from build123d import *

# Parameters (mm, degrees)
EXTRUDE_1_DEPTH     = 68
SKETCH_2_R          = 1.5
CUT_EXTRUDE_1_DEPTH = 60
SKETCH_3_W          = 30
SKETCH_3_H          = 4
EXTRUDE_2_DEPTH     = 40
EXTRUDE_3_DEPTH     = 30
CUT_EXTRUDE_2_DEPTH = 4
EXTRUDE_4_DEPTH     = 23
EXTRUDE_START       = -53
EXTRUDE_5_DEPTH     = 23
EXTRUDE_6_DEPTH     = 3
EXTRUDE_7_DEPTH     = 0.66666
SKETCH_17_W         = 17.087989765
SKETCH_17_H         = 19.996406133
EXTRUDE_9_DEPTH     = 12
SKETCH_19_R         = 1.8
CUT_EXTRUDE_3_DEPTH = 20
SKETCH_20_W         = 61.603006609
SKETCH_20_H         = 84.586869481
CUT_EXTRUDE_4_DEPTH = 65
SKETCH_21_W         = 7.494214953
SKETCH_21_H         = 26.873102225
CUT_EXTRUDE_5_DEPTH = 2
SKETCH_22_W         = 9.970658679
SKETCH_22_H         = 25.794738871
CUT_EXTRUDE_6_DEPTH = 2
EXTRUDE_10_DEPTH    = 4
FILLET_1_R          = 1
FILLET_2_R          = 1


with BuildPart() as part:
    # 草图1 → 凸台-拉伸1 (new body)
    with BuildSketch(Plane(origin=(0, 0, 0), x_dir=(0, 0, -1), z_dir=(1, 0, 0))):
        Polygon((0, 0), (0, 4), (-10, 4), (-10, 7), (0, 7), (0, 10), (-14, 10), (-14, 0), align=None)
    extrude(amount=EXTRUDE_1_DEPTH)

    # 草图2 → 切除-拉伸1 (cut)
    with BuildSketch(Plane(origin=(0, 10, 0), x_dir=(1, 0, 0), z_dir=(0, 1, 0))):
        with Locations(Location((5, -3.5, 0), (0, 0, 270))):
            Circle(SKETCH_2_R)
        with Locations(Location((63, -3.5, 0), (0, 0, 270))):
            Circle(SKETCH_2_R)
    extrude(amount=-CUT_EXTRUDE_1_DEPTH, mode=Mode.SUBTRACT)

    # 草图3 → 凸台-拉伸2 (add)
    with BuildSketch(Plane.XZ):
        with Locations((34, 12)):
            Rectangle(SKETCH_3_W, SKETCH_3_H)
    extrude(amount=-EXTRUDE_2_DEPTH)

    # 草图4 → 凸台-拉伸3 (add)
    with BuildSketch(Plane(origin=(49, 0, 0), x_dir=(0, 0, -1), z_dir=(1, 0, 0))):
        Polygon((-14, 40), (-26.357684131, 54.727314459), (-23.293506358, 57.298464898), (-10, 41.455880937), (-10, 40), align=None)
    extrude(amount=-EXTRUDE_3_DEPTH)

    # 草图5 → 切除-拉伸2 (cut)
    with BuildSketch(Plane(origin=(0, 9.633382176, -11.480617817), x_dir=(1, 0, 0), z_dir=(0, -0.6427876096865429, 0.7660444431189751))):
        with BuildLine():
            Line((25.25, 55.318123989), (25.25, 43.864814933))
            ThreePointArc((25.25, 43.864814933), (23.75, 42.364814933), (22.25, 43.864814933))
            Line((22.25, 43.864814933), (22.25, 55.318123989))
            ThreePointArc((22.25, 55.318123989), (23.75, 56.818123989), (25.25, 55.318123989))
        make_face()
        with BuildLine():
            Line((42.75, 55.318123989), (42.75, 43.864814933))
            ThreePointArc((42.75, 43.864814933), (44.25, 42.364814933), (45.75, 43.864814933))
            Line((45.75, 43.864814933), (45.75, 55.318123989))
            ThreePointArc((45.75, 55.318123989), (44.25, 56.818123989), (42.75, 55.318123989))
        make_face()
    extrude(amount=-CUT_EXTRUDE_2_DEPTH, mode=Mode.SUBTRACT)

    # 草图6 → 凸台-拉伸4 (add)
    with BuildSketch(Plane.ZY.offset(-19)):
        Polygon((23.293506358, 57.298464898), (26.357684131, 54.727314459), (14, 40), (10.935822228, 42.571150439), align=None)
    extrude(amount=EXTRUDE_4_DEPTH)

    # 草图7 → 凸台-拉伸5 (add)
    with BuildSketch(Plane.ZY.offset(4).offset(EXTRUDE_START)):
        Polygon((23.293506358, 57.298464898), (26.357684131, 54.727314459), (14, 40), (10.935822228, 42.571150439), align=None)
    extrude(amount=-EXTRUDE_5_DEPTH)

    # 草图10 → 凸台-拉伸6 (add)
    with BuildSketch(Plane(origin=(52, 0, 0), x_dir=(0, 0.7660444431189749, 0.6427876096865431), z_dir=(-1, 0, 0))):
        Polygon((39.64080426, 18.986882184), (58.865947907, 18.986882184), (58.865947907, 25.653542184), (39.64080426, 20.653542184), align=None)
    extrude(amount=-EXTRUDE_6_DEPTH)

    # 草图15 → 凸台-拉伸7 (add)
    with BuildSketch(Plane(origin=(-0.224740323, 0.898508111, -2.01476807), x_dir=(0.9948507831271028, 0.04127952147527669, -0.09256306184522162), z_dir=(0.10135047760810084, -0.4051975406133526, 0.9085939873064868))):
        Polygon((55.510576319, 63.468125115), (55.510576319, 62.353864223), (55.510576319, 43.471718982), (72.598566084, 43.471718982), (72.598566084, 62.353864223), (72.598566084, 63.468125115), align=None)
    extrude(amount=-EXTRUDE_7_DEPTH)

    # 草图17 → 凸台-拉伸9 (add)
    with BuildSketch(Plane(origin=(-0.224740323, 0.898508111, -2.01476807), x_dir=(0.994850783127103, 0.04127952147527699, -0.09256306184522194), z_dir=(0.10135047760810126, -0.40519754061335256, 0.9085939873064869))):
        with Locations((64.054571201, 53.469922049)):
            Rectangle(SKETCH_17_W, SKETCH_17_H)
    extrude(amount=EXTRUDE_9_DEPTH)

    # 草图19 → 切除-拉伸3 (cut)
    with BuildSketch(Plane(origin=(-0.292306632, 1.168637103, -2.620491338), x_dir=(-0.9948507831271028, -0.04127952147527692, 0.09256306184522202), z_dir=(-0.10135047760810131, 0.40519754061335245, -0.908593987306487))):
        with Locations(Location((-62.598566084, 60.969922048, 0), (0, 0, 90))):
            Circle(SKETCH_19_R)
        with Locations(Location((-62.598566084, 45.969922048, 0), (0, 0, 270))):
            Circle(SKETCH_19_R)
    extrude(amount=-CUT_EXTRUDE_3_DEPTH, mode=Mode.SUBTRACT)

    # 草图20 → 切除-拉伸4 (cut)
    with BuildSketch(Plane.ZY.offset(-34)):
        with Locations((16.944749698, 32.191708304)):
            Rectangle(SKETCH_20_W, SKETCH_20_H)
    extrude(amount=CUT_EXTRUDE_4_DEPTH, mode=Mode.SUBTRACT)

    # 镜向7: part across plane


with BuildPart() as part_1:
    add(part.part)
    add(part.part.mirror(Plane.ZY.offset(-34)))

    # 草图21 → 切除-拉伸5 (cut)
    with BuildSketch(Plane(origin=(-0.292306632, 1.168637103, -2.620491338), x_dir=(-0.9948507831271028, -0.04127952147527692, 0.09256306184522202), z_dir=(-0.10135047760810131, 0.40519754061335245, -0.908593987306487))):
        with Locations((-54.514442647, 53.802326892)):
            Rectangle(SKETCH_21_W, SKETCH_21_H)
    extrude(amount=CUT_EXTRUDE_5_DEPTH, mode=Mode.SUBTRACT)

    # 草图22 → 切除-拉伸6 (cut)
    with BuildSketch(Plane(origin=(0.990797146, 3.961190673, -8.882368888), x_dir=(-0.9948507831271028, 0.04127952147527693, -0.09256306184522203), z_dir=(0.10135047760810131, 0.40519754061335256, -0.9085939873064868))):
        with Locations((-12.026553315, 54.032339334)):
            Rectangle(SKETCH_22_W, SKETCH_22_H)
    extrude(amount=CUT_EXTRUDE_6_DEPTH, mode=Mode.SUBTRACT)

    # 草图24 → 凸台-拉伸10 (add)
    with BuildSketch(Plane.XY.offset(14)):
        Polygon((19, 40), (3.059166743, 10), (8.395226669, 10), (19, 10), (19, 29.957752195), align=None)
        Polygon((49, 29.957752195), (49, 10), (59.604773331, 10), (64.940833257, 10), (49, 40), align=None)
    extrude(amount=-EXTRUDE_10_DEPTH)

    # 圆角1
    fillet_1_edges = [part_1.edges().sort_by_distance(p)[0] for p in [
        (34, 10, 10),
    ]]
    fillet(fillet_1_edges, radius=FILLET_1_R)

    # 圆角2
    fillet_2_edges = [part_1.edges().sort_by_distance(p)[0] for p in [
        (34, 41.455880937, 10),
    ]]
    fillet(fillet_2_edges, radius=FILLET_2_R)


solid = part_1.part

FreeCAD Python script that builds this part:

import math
import FreeCAD as App
import Part
import Sketcher

V = App.Vector
Q = App.Units.Quantity


def edges_at(feature, points):
    """Names of the edges that pass closest to the given points."""
    edges = feature.Shape.Edges
    near = lambda p: min(range(len(edges)), key=lambda i: edges[i].distToShape(Part.Vertex(*p))[0])
    return sorted({f"Edge{near(p) + 1}" for p in points})


def add_polygon(sketch, points):
    """Adds a closed chain of lines whose ends are joined by coincident constraints."""
    first, n = sketch.GeometryCount, len(points)
    for a, b in zip(points, points[1:] + points[:1]):
        sketch.addGeometry(Part.LineSegment(App.Vector(*a, 0), App.Vector(*b, 0)), False)
    for i in range(n):
        sketch.addConstraint(Sketcher.Constraint("Coincident", first + i, 2, first + (i + 1) % n, 1))

doc = App.newDocument("Part")
params = doc.addObject("Spreadsheet::Sheet", "Params")
for row, (alias, value) in enumerate([
    ("sketch1_width", "4 mm"),
    ("sketch1_width2", "3 mm"),
    ("sketch1_height", "14 mm"),
    ("pad1_length", "68 mm"),
    ("sketch2_diameter", "3 mm"),
    ("pocket1_length", "60 mm"),
    ("sketch3_width", "30 mm"),
    ("sketch3_height", "4 mm"),
    ("pad2_length", "40 mm"),
    ("sketch4_height", "4 mm"),
    ("sketch4_length", "4 mm"),
    ("pad3_length", "30 mm"),
    ("sketch5_radius", "1.5 mm"),
    ("pocket2_length", "4 mm"),
    ("sketch6_length", "4 mm"),
    ("pad4_length", "23 mm"),
    ("sketch7_length", "4 mm"),
    ("pad5_length", "23 mm"),
    ("pad6_length", "3 mm"),
    ("pad7_length", "0.66666 mm"),
    ("pad8_length", "12 mm"),
    ("sketch11_diameter", "3.6 mm"),
    ("pocket3_length", "20 mm"),
    ("pocket4_length", "65 mm"),
    ("pocket5_length", "2 mm"),
    ("pocket6_length", "2 mm"),
    ("sketch15_height", "30 mm"),
    ("pad9_length", "4 mm"),
    ("fillet_radius", "1 mm"),
    ("fillet2_radius", "1 mm"),
], start=1):
    params.set(f"A{row}", alias)
    params.set(f"B{row}", "=" + value)
    params.setAlias(f"B{row}", alias)

body = doc.addObject("PartDesign::Body", "Body")

sketch1 = body.newObject("Sketcher::SketchObject", "Sketch")
sketch1.AttachmentSupport = (doc.getObject("YZ_Plane"), [""])
sketch1.MapMode = "FlatFace"
add_polygon(sketch1, [(0, 0), (4, 0), (4, 10), (7, 10), (7, 0), (10, 0), (10, 14), (0, 14)])
sketch1.addConstraint([
    Sketcher.Constraint("Horizontal", 0),
    Sketcher.Constraint("Vertical", 1),
    Sketcher.Constraint("Horizontal", 2),
    Sketcher.Constraint("Vertical", 3),
    Sketcher.Constraint("Horizontal", 4),
    Sketcher.Constraint("Vertical", 5),
    Sketcher.Constraint("Horizontal", 6),
    Sketcher.Constraint("Vertical", 7),
    Sketcher.Constraint("Coincident", 7, 2, -1, 1),
    Sketcher.Constraint("PointOnObject", 3, 2, -1),
    Sketcher.Constraint("Equal", 2, 4),
    Sketcher.Constraint("Equal", 6, 1),
    Sketcher.Constraint("DistanceX", 0, 1, 0, 2, 4.0),
    Sketcher.Constraint("DistanceX", 2, 1, 2, 2, 3.0),
    Sketcher.Constraint("DistanceY", 5, 1, 5, 2, 14.0),
])
sketch1.setExpression("Constraints[20]", "Params.sketch1_width")
sketch1.setExpression("Constraints[21]", "Params.sketch1_width2")
sketch1.setExpression("Constraints[22]", "Params.sketch1_height")
pad1 = body.newObject("PartDesign::Pad", "Pad")
pad1.Profile = sketch1
pad1.setExpression("Length", "Params.pad1_length")

sketch2 = body.newObject("Sketcher::SketchObject", "Sketch001")
sketch2.AttachmentSupport = (doc.getObject("XZ_Plane"), [""])
sketch2.MapMode = "FlatFace"
sketch2.AttachmentOffset = App.Placement(V(0, 0, -10), App.Rotation())
sketch2.addGeometry([
    Part.Circle(V(5, 3.5, 0), V(0, 0, 1), 1.5),
    Part.Circle(V(63, 3.5, 0), V(0, 0, 1), 1.5),
], False)
sketch2.addConstraint([
    Sketcher.Constraint("Equal", 0, 1),
    Sketcher.Constraint("Horizontal", 0, 3, 1, 3),
    Sketcher.Constraint("Diameter", 0, 3.0),
    Sketcher.Constraint("DistanceX", -1, 1, 0, 3, 5.0),
    Sketcher.Constraint("DistanceX", -1, 1, 1, 3, 63.0),
    Sketcher.Constraint("DistanceY", -1, 1, 0, 3, 3.5),
])
sketch2.setExpression("Constraints[2]", "Params.sketch2_diameter")
pocket1 = body.newObject("PartDesign::Pocket", "Pocket")
pocket1.Profile = sketch2
pocket1.setExpression("Length", "Params.pocket1_length")
pocket1.Reversed = True

sketch3 = body.newObject("Sketcher::SketchObject", "Sketch002")
sketch3.AttachmentSupport = (doc.getObject("XZ_Plane"), [""])
sketch3.MapMode = "FlatFace"
add_polygon(sketch3, [(19, 14), (19, 10), (49, 10), (49, 14)])
sketch3.addConstraint([
    Sketcher.Constraint("Vertical", 0),
    Sketcher.Constraint("Horizontal", 1),
    Sketcher.Constraint("Vertical", 2),
    Sketcher.Constraint("Horizontal", 3),
    Sketcher.Constraint("DistanceX", 1, 1, 1, 2, 30.0),
    Sketcher.Constraint("DistanceY", 0, 2, 0, 1, 4.0),
    Sketcher.Constraint("DistanceX", -1, 1, 0, 2, 19.0),
    Sketcher.Constraint("DistanceY", -1, 1, 0, 2, 10.0),
])
sketch3.setExpression("Constraints[8]", "Params.sketch3_width")
sketch3.setExpression("Constraints[9]", "Params.sketch3_height")
pad2 = body.newObject("PartDesign::Pad", "Pad001")
pad2.Profile = sketch3
pad2.setExpression("Length", "Params.pad2_length")
pad2.Reversed = True

sketch4 = body.newObject("Sketcher::SketchObject", "Sketch003")
sketch4.AttachmentSupport = (doc.getObject("YZ_Plane"), [""])
sketch4.MapMode = "FlatFace"
sketch4.AttachmentOffset = App.Placement(V(0, 0, 49), App.Rotation())
add_polygon(sketch4, [(54.7, 26.4), (40, 14), (40, 10), (41.5, 10), (57.3, 23.3)])
sketch4.addConstraint([
    Sketcher.Constraint("Vertical", 1),
    Sketcher.Constraint("Horizontal", 2),
    Sketcher.Constraint("Parallel", 0, 3),
    Sketcher.Constraint("Perpendicular", 3, 4),
    Sketcher.Constraint("DistanceY", 1, 2, 1, 1, 4.0),
    Sketcher.Constraint("Angle", 0, Q("-140 deg")),
    Sketcher.Constraint("Distance", 4, 4.0),
    Sketcher.Constraint("DistanceX", -1, 1, 0, 2, 40.0),
    Sketcher.Constraint("DistanceY", -1, 1, 0, 2, 14.0),
    Sketcher.Constraint("Distance", 0, 19.225144),
])
sketch4.setExpression("Constraints[9]", "Params.sketch4_height")
sketch4.setExpression("Constraints[11]", "Params.sketch4_length")
pad3 = body.newObject("PartDesign::Pad", "Pad002")
pad3.Profile = sketch4
pad3.setExpression("Length", "Params.pad3_length")
pad3.Reversed = True

sketch5 = body.newObject("Sketcher::SketchObject", "Sketch004")
sketch5.Placement = App.Placement(V(0, 9.633382, -11.480618), App.Rotation(V(1, 0, 0), V(0, 0.766044443, 0.64278761), V(0, -0.64278761, 0.766044443), "ZXY"))
sketch5.addGeometry([
    Part.LineSegment(V(25.2, 43.9, 0), V(25.2, 55.3, 0)),
    Part.ArcOfCircle(Part.Circle(V(23.8, 55.3, 0), V(0, 0, 1), 1.5), math.radians(0), math.radians(180)),
    Part.LineSegment(V(22.2, 55.3, 0), V(22.2, 43.9, 0)),
    Part.ArcOfCircle(Part.Circle(V(23.8, 43.9, 0), V(0, 0, 1), 1.5), math.radians(180), math.radians(360)),
    Part.LineSegment(V(42.8, 55.3, 0), V(42.8, 43.9, 0)),
    Part.ArcOfCircle(Part.Circle(V(44.2, 43.9, 0), V(0, 0, 1), 1.5), math.radians(180), math.radians(360)),
    Part.LineSegment(V(45.8, 43.9, 0), V(45.8, 55.3, 0)),
    Part.ArcOfCircle(Part.Circle(V(44.2, 55.3, 0), V(0, 0, 1), 1.5), math.radians(0), math.radians(180)),
], False)
sketch5.addConstraint([
    Sketcher.Constraint("Tangent", 0, 2, 1, 1),
    Sketcher.Constraint("Tangent", 1, 2, 2, 1),
    Sketcher.Constraint("Tangent", 2, 2, 3, 1),
    Sketcher.Constraint("Tangent", 3, 2, 0, 1),
    Sketcher.Constraint("Tangent", 4, 2, 5, 1),
    Sketcher.Constraint("Tangent", 5, 2, 6, 1),
    Sketcher.Constraint("Tangent", 6, 2, 7, 1),
    Sketcher.Constraint("Tangent", 7, 2, 4, 1),
    Sketcher.Constraint("Vertical", 0),
    Sketcher.Constraint("Vertical", 2),
    Sketcher.Constraint("Vertical", 4),
    Sketcher.Constraint("Vertical", 6),
    Sketcher.Constraint("Equal", 3, 5),
    Sketcher.Constraint("Horizontal", 3, 3, 5, 3),
    Sketcher.Constraint("Horizontal", 1, 3, 7, 3),
    Sketcher.Constraint("Radius", 1, 1.5),
    Sketcher.Constraint("DistanceX", 0, 2, 7, 3, 19.0),
    Sketcher.Constraint("DistanceX", -1, 1, 1, 3, 23.75),
    Sketcher.Constraint("DistanceY", 0, 1, 0, 2, 11.453309),
    Sketcher.Constraint("DistanceY", -1, 1, 1, 3, 55.318124),
])
sketch5.setExpression("Constraints[15]", "Params.sketch5_radius")
pocket2 = body.newObject("PartDesign::Pocket", "Pocket001")
pocket2.Profile = sketch5
pocket2.setExpression("Length", "Params.pocket2_length")

sketch6 = body.newObject("Sketcher::SketchObject", "Sketch005")
sketch6.AttachmentSupport = (doc.getObject("YZ_Plane"), [""])
sketch6.MapMode = "FlatFace"
sketch6.AttachmentOffset = App.Placement(V(0, 0, 19), App.Rotation())
add_polygon(sketch6, [(54.7, 26.4), (57.3, 23.3), (42.6, 10.9), (40, 14)])
sketch6.addConstraint([
    Sketcher.Constraint("Perpendicular", 0, 1),
    Sketcher.Constraint("Perpendicular", 1, 2),
    Sketcher.Constraint("Perpendicular", 2, 3),
    Sketcher.Constraint("Angle", 0, Q("-50 deg")),
    Sketcher.Constraint("Distance", 0, 4.0),
    Sketcher.Constraint("DistanceX", -1, 1, 2, 2, 40.0),
    Sketcher.Constraint("DistanceY", -1, 1, 2, 2, 14.0),
    Sketcher.Constraint("DistanceY", 1, 2, 3, 2, 15.421862),
])
sketch6.setExpression("Constraints[8]", "Params.sketch6_length")
pad4 = body.newObject("PartDesign::Pad", "Pad003")
pad4.Profile = sketch6
pad4.setExpression("Length", "Params.pad4_length")
pad4.Reversed = True

sketch7 = body.newObject("Sketcher::SketchObject", "Sketch006")
sketch7.AttachmentSupport = (doc.getObject("YZ_Plane"), [""])
sketch7.MapMode = "FlatFace"
sketch7.AttachmentOffset = App.Placement(V(0, 0, 49), App.Rotation())
add_polygon(sketch7, [(54.7, 26.4), (57.3, 23.3), (42.6, 10.9), (40, 14)])
sketch7.addConstraint([
    Sketcher.Constraint("Perpendicular", 0, 1),
    Sketcher.Constraint("Perpendicular", 1, 2),
    Sketcher.Constraint("Perpendicular", 2, 3),
    Sketcher.Constraint("Angle", 0, Q("-50 deg")),
    Sketcher.Constraint("Distance", 0, 4.0),
    Sketcher.Constraint("DistanceX", -1, 1, 2, 2, 40.0),
    Sketcher.Constraint("DistanceY", -1, 1, 2, 2, 14.0),
    Sketcher.Constraint("DistanceY", 1, 2, 3, 2, 15.421862),
])
sketch7.setExpression("Constraints[8]", "Params.sketch7_length")
pad5 = body.newObject("PartDesign::Pad", "Pad004")
pad5.Profile = sketch7
pad5.setExpression("Length", "Params.pad5_length")

sketch8 = body.newObject("Sketcher::SketchObject", "Sketch007")
sketch8.AttachmentSupport = (doc.getObject("YZ_Plane"), [""])
sketch8.MapMode = "FlatFace"
sketch8.AttachmentOffset = App.Placement(V(0, 0, 52), App.Rotation())
add_polygon(sketch8, [(42.6, 10.9), (57.3, 23.3), (61.6, 18.2), (43.6, 9.7)])
sketch8.addConstraint([
    Sketcher.Constraint("Perpendicular", 0, 1),
    Sketcher.Constraint("Parallel", 1, 3),
    Sketcher.Constraint("Angle", 0, Q("40 deg")),
    Sketcher.Constraint("Distance", 1, 6.66666),
    Sketcher.Constraint("Distance", 3, 1.66666),
    Sketcher.Constraint("DistanceX", -1, 1, 1, 2, 61.583711),
    Sketcher.Constraint("DistanceY", -1, 1, 1, 2, 18.186549),
    Sketcher.Constraint("DistanceX", -1, 1, 2, 2, 43.642459),
])
pad6 = body.newObject("PartDesign::Pad", "Pad005")
pad6.Profile = sketch8
pad6.setExpression("Length", "Params.pad6_length")

sketch9 = body.newObject("Sketcher::SketchObject", "Sketch008")
sketch9.Placement = App.Placement(V(-0.22474, 0.898508, -2.014768), App.Rotation(V(0.994850783, 0.041279521, -0.092563062), V(0.000000001, 0.91329675, 0.40729479), V(0.101350478, -0.405197541, 0.908593987), "ZXY"))
add_polygon(sketch9, [(56, 63), (56, 43), (73, 43), (73, 63)])
sketch9.addConstraint([
    Sketcher.Constraint("Vertical", 0),
    Sketcher.Constraint("Horizontal", 1),
    Sketcher.Constraint("Vertical", 2),
    Sketcher.Constraint("Horizontal", 3),
    Sketcher.Constraint("DistanceX", 1, 1, 1, 2, 17.08799),
    Sketcher.Constraint("DistanceY", 0, 2, 0, 1, 19.996406),
    Sketcher.Constraint("DistanceY", -1, 1, 0, 2, 43.471719),
    Sketcher.Constraint("DistanceX", -1, 1, 0, 2, 55.510576),
])
pad7 = body.newObject("PartDesign::Pad", "Pad006")
pad7.Profile = sketch9
pad7.setExpression("Length", "Params.pad7_length")
pad7.Reversed = True

sketch10 = body.newObject("Sketcher::SketchObject", "Sketch009")
sketch10.Placement = App.Placement(V(-0.22474, 0.898508, -2.014768), App.Rotation(V(0.994850783, 0.041279521, -0.092563062), V(0.000000001, 0.91329675, 0.40729479), V(0.101350478, -0.405197541, 0.908593987), "ZXY"))
add_polygon(sketch10, [(56, 63), (56, 43), (73, 43), (73, 63)])
sketch10.addConstraint([
    Sketcher.Constraint("Vertical", 0),
    Sketcher.Constraint("Horizontal", 1),
    Sketcher.Constraint("Vertical", 2),
    Sketcher.Constraint("Horizontal", 3),
    Sketcher.Constraint("DistanceX", 1, 1, 1, 2, 17.08799),
    Sketcher.Constraint("DistanceY", 0, 2, 0, 1, 19.996406),
    Sketcher.Constraint("DistanceY", -1, 1, 0, 2, 43.471719),
    Sketcher.Constraint("DistanceX", -1, 1, 0, 2, 55.510576),
])
pad8 = body.newObject("PartDesign::Pad", "Pad007")
pad8.Profile = sketch10
pad8.setExpression("Length", "Params.pad8_length")

sketch11 = body.newObject("Sketcher::SketchObject", "Sketch010")
sketch11.Placement = App.Placement(V(-0.292307, 1.168637, -2.620491), App.Rotation(V(-0.994850783, -0.041279521, 0.092563062), V(0.000000001, 0.91329675, 0.40729479), V(-0.101350478, 0.405197541, -0.908593987), "ZXY"))
sketch11.addGeometry([
    Part.Circle(V(-62.6, 61, 0), V(0, 0, 1), 1.8),
    Part.Circle(V(-62.6, 46, 0), V(0, 0, 1), 1.8),
], False)
sketch11.addConstraint([
    Sketcher.Constraint("Equal", 0, 1),
    Sketcher.Constraint("Vertical", 0, 3, 1, 3),
    Sketcher.Constraint("Diameter", 0, 3.6),
    Sketcher.Constraint("DistanceY", 1, 3, 0, 3, 15.0),
    Sketcher.Constraint("DistanceX", 0, 3, -1, 1, 62.598566),
    Sketcher.Constraint("DistanceY", -1, 1, 0, 3, 60.969922),
])
sketch11.setExpression("Constraints[2]", "Params.sketch11_diameter")
pocket3 = body.newObject("PartDesign::Pocket", "Pocket002")
pocket3.Profile = sketch11
pocket3.setExpression("Length", "Params.pocket3_length")

sketch12 = body.newObject("Sketcher::SketchObject", "Sketch011")
sketch12.AttachmentSupport = (doc.getObject("YZ_Plane"), [""])
sketch12.MapMode = "FlatFace"
sketch12.AttachmentOffset = App.Placement(V(0, 0, 34), App.Rotation())
add_polygon(sketch12, [(74, -14), (-10, -14), (-10, 48), (74, 48)])
sketch12.addConstraint([
    Sketcher.Constraint("Horizontal", 0),
    Sketcher.Constraint("Vertical", 1),
    Sketcher.Constraint("Horizontal", 2),
    Sketcher.Constraint("Vertical", 3),
    Sketcher.Constraint("DistanceX", 0, 2, 0, 1, 84.586869),
    Sketcher.Constraint("DistanceY", 1, 1, 1, 2, 61.603007),
    Sketcher.Constraint("DistanceX", 0, 2, -1, 1, 10.101726),
    Sketcher.Constraint("DistanceY", 0, 2, -1, 1, 13.856754),
])
pocket4 = body.newObject("PartDesign::Pocket", "Pocket003")
pocket4.Profile = sketch12
pocket4.setExpression("Length", "Params.pocket4_length")
body2 = doc.addObject("PartDesign::Body", "Body001")
doc.recompute()

body2.BaseFeature = body
doc.recompute()

mirroring = doc.addObject("Part::Mirroring", "Mirroring")
mirroring.Source = body
mirroring.Base = V(34, 0, 0)
mirroring.Normal = V(-1, 0, 0)
body3 = doc.addObject("PartDesign::Body", "Body002")
body3.BaseFeature = mirroring
boolean = body2.newObject("PartDesign::Boolean", "Boolean")
boolean.Type = "Fuse"
boolean.addObjects([body3])
doc.recompute()

sketch13 = body2.newObject("Sketcher::SketchObject", "Sketch012")
sketch13.Placement = App.Placement(V(-0.292307, 1.168637, -2.620491), App.Rotation(V(-0.994850783, -0.041279521, 0.092563062), V(0.000000001, 0.91329675, 0.40729479), V(-0.101350478, 0.405197541, -0.908593987), "ZXY"))
add_polygon(sketch13, [(-58, 67), (-58, 40), (-51, 40), (-51, 67)])
sketch13.addConstraint([
    Sketcher.Constraint("Vertical", 0),
    Sketcher.Constraint("Horizontal", 1),
    Sketcher.Constraint("Vertical", 2),
    Sketcher.Constraint("Horizontal", 3),
    Sketcher.Constraint("DistanceX", 1, 1, 1, 2, 7.494215),
    Sketcher.Constraint("DistanceY", 0, 2, 0, 1, 26.873102),
    Sketcher.Constraint("DistanceX", 0, 2, -1, 1, 58.26155),
    Sketcher.Constraint("DistanceY", -1, 1, 0, 2, 40.365776),
])
pocket5 = body2.newObject("PartDesign::Pocket", "Pocket004")
pocket5.Profile = sketch13
pocket5.setExpression("Length", "Params.pocket5_length")
pocket5.Reversed = True

sketch14 = body2.newObject("Sketcher::SketchObject", "Sketch013")
sketch14.Placement = App.Placement(V(0.990797, 3.961191, -8.882369), App.Rotation(V(-0.994850783, 0.041279521, -0.092563062), V(-0.000000001, 0.91329675, 0.40729479), V(0.101350478, 0.405197541, -0.908593987), "ZXY"))
add_polygon(sketch14, [(-17, 67), (-17, 41), (-7, 41), (-7, 67)])
sketch14.addConstraint([
    Sketcher.Constraint("Vertical", 0),
    Sketcher.Constraint("Horizontal", 1),
    Sketcher.Constraint("Vertical", 2),
    Sketcher.Constraint("Horizontal", 3),
    Sketcher.Constraint("DistanceX", 1, 1, 1, 2, 9.970659),
    Sketcher.Constraint("DistanceY", 0, 2, 0, 1, 25.794739),
    Sketcher.Constraint("DistanceY", -1, 1, 0, 2, 41.13497),
    Sketcher.Constraint("DistanceX", 0, 2, -1, 1, 17.011883),
])
pocket6 = body2.newObject("PartDesign::Pocket", "Pocket005")
pocket6.Profile = sketch14
pocket6.setExpression("Length", "Params.pocket6_length")
pocket6.Reversed = True

sketch15 = body2.newObject("Sketcher::SketchObject", "Sketch014")
sketch15.AttachmentSupport = (doc.getObject("XY_Plane001"), [""])
sketch15.MapMode = "FlatFace"
sketch15.AttachmentOffset = App.Placement(V(0, 0, 14), App.Rotation())
add_polygon(sketch15, [(19, 40), (3, 10), (19, 10)])
add_polygon(sketch15, [(49, 10), (65, 10), (49, 40)])
sketch15.addConstraint([
    Sketcher.Constraint("Horizontal", 1),
    Sketcher.Constraint("Vertical", 2),
    Sketcher.Constraint("Horizontal", 3),
    Sketcher.Constraint("Vertical", 5),
    Sketcher.Constraint("Horizontal", 1, 2, 3, 2),
    Sketcher.Constraint("Horizontal", 2, 2, 4, 2),
    Sketcher.Constraint("Equal", 1, 3),
    Sketcher.Constraint("DistanceY", 2, 1, 2, 2, 30.0),
    Sketcher.Constraint("DistanceY", -1, 1, 0, 2, 10.0),
    Sketcher.Constraint("DistanceX", -1, 1, 1, 2, 19.0),
    Sketcher.Constraint("DistanceX", -1, 1, 4, 2, 49.0),
    Sketcher.Constraint("DistanceX", 1, 1, 1, 2, 15.940833),
])
sketch15.setExpression("Constraints[13]", "Params.sketch15_height")
pad9 = body2.newObject("PartDesign::Pad", "Pad008")
pad9.Profile = sketch15
pad9.setExpression("Length", "Params.pad9_length")
pad9.Reversed = True
doc.recompute()

fillet = body2.newObject("PartDesign::Fillet", "Fillet")
fillet.Base = (pad9, edges_at(pad9, [(34, 10, 10)]))
fillet.setExpression("Radius", "Params.fillet_radius")
doc.recompute()

fillet2 = body2.newObject("PartDesign::Fillet", "Fillet001")
fillet2.Base = (fillet, edges_at(fillet, [(34, 41.456, 10)]))
fillet2.setExpression("Radius", "Params.fillet2_radius")
mirroring.Visibility = False

doc.recompute()
